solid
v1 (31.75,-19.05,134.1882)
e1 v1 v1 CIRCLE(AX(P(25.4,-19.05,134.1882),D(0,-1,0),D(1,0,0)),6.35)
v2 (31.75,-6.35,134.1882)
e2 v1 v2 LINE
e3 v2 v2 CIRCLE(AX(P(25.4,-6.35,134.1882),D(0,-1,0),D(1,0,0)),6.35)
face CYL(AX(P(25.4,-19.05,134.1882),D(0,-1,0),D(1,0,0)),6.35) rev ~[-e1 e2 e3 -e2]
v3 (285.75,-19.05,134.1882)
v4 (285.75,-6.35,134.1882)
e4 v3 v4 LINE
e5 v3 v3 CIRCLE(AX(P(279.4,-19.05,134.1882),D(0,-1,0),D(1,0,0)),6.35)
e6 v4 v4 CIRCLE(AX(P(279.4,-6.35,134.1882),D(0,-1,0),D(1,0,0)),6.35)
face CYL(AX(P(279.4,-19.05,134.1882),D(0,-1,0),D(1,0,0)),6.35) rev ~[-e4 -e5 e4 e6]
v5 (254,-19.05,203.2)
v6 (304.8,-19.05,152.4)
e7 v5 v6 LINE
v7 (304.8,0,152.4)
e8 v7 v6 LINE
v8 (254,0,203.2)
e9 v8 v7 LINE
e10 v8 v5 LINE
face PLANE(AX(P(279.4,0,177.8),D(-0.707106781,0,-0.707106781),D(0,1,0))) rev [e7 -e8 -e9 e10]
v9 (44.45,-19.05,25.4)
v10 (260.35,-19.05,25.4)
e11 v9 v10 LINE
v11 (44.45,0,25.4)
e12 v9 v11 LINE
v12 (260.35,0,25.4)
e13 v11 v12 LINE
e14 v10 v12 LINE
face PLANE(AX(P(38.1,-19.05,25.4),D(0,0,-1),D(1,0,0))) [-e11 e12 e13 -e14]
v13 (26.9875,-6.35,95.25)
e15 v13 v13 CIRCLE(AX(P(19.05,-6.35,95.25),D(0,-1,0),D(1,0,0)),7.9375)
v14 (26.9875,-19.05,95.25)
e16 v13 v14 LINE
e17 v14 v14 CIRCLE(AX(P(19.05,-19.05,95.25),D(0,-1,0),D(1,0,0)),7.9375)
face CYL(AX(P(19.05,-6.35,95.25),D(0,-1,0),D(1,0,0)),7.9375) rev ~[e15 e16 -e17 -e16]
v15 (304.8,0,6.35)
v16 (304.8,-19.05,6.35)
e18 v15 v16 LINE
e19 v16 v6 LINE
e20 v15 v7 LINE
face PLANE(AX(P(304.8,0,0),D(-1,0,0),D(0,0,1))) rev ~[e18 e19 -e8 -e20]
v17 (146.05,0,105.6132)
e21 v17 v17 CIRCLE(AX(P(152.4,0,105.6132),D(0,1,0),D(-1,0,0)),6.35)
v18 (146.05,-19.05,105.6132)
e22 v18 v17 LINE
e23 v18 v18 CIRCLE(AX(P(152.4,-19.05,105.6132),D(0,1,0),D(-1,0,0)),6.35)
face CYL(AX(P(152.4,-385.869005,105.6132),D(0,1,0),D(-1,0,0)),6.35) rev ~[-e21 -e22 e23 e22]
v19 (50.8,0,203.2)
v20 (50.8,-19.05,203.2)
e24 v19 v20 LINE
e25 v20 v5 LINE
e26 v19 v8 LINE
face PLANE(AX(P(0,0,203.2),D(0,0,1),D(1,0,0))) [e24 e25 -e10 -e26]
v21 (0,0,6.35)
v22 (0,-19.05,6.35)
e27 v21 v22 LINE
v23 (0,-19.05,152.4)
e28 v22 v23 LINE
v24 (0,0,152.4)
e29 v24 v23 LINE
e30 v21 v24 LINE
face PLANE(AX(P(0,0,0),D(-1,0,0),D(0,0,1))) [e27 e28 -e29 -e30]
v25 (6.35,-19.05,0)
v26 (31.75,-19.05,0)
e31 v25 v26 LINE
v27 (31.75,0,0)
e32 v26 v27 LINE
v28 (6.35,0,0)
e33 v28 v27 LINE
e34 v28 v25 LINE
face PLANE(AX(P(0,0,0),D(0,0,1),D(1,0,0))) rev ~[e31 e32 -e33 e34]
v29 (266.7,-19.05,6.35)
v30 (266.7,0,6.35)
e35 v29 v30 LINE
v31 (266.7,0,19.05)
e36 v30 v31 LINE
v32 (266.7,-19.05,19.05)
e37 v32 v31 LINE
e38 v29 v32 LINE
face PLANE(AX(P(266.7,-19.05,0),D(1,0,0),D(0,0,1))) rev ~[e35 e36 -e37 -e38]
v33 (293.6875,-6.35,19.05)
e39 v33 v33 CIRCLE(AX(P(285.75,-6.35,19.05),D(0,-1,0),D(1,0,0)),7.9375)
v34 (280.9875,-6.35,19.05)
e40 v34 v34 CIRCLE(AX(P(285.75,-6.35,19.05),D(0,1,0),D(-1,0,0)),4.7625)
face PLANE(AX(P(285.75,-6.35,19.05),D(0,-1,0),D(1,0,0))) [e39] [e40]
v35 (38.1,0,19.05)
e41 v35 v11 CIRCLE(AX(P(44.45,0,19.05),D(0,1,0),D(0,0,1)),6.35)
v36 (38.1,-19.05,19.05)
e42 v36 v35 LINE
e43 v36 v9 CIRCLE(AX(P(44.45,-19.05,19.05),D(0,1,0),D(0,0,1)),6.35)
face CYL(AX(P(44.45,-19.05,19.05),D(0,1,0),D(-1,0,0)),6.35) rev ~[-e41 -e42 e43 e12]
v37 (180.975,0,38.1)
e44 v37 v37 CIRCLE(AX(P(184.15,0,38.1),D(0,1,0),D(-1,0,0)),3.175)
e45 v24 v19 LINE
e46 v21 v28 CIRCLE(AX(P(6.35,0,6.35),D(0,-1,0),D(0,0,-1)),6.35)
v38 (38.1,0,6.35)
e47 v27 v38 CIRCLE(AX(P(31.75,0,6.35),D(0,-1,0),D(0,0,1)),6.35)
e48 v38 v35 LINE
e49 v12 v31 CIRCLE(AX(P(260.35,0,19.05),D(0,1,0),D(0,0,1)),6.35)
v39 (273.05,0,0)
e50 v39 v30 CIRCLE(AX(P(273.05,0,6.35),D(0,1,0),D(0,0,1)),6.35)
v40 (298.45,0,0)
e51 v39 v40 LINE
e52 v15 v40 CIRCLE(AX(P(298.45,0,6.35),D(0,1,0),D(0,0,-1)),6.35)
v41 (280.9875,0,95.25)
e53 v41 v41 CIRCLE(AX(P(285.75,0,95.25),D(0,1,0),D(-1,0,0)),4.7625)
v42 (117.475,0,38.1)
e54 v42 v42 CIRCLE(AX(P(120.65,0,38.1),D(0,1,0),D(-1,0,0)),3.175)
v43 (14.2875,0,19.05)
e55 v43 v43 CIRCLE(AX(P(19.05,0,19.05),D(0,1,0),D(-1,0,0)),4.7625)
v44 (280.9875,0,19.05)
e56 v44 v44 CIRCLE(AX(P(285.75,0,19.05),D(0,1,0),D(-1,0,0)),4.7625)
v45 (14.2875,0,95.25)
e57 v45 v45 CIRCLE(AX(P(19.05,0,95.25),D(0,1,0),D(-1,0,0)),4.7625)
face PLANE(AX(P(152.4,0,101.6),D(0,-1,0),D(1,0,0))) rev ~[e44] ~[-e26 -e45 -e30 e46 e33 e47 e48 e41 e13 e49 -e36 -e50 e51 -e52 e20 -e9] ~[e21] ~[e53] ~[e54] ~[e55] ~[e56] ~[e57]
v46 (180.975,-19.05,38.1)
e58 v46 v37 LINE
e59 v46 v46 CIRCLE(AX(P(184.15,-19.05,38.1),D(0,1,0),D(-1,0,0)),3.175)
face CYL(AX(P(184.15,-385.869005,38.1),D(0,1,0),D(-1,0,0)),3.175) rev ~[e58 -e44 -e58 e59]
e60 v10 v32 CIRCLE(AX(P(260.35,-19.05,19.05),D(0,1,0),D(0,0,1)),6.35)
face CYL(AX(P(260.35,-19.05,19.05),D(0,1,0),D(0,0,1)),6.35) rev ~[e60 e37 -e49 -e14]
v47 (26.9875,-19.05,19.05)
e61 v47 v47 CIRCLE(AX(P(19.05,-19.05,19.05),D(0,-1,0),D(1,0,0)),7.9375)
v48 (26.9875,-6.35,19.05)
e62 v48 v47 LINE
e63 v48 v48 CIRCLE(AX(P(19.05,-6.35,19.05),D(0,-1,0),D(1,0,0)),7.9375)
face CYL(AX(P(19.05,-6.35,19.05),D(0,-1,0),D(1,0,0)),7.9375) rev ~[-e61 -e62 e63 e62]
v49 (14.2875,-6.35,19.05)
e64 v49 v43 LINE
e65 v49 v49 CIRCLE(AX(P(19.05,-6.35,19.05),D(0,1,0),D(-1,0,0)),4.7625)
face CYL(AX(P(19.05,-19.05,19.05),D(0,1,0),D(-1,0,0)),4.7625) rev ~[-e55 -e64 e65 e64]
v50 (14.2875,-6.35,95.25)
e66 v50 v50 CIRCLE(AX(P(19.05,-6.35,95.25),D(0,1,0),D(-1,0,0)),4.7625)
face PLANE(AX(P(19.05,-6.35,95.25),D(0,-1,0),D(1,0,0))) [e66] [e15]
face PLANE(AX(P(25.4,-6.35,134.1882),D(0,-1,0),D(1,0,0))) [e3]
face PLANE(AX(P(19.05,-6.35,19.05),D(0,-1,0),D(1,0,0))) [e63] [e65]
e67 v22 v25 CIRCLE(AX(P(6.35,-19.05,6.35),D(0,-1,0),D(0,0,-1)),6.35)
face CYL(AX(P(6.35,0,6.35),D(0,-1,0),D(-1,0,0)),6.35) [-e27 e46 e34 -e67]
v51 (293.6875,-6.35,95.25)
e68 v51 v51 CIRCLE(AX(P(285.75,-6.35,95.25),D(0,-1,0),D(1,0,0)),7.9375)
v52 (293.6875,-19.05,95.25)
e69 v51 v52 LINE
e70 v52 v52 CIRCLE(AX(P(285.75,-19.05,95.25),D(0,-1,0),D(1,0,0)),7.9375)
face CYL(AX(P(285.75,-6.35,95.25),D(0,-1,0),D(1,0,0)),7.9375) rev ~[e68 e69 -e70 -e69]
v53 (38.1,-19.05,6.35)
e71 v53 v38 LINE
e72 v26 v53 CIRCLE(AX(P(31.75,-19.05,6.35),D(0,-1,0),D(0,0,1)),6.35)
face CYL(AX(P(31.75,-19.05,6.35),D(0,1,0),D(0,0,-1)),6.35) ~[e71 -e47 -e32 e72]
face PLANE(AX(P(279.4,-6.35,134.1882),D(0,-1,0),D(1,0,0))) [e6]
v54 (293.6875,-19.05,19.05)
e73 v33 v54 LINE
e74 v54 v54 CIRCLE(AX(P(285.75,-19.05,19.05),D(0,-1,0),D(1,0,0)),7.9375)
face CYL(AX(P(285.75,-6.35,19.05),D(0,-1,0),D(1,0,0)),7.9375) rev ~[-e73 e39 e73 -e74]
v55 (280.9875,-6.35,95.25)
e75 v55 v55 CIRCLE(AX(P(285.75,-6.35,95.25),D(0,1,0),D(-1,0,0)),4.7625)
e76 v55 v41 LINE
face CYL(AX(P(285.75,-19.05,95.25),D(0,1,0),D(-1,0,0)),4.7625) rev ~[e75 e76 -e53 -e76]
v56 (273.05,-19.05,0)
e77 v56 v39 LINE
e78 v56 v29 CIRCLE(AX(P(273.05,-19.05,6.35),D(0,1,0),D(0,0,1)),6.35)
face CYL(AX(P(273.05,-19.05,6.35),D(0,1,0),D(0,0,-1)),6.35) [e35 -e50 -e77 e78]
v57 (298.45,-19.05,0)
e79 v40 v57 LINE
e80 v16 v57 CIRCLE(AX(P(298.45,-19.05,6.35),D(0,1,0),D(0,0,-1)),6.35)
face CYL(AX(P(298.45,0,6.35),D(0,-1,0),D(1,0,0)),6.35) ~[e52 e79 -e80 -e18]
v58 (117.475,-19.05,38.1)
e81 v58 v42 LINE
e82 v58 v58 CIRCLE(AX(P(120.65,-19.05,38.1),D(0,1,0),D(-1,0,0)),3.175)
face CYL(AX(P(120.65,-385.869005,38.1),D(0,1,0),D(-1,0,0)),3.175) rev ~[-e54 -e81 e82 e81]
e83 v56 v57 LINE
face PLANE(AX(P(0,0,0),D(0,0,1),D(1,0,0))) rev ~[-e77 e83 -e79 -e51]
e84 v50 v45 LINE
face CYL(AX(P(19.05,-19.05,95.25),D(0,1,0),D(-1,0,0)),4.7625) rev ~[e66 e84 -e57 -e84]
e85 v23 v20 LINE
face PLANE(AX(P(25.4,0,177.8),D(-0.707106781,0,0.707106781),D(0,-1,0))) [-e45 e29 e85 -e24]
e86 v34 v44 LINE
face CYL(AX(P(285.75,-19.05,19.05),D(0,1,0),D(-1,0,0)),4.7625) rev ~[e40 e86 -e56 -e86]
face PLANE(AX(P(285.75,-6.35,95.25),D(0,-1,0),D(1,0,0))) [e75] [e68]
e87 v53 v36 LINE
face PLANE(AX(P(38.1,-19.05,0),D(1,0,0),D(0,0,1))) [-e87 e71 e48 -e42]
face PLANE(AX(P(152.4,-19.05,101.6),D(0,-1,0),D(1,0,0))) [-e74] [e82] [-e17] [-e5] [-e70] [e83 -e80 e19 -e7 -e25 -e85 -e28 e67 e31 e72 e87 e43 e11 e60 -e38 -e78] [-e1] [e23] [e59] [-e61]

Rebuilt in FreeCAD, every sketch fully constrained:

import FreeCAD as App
import Part
import Sketcher

V = App.Vector
Q = App.Units.Quantity


def edges_at(feature, points):
    """Names of the edges that pass closest to the given points."""
    edges = feature.Shape.Edges
    near = lambda p: min(range(len(edges)), key=lambda i: edges[i].distToShape(Part.Vertex(*p))[0])
    return sorted({f"Edge{near(p) + 1}" for p in points})


def add_polygon(sketch, points):
    """Adds a closed chain of lines whose ends are joined by coincident constraints."""
    first, n = sketch.GeometryCount, len(points)
    for a, b in zip(points, points[1:] + points[:1]):
        sketch.addGeometry(Part.LineSegment(App.Vector(*a, 0), App.Vector(*b, 0)), False)
    for i in range(n):
        sketch.addConstraint(Sketcher.Constraint("Coincident", first + i, 2, first + (i + 1) % n, 1))

doc = App.newDocument("Part")
body = doc.addObject("PartDesign::Body", "Body")

# Sketch on XZ plane
sketch1 = doc.addObject("Sketcher::SketchObject", "Sketch")
body.addObject(sketch1)
sketch1.AttachmentSupport = (doc.XZ_Plane, [""])
sketch1.MapMode = "FlatFace"
add_polygon(sketch1, [(0, 203), (0, 0), (305, 0), (305, 203)])  # lines 0-3
sketch1.addConstraint(Sketcher.Constraint("Vertical", 0))
sketch1.addConstraint(Sketcher.Constraint("Horizontal", 1))
sketch1.addConstraint(Sketcher.Constraint("Vertical", 2))
sketch1.addConstraint(Sketcher.Constraint("Horizontal", 3))
sketch1.addConstraint(Sketcher.Constraint("Coincident", 0, 2, -1, 1))
sketch1.addConstraint(Sketcher.Constraint("DistanceX", 1, 1, 1, 2, Q("12 in")))
sketch1.addConstraint(Sketcher.Constraint("DistanceY", 0, 2, 0, 1, Q("8 in")))
pad1 = doc.addObject("PartDesign::Pad", "Pad")
body.addObject(pad1)
pad1.Profile = sketch1
pad1.Length = Q("0.75 in")

# Sketch on XZ plane
sketch2 = doc.addObject("Sketcher::SketchObject", "Sketch001")
body.addObject(sketch2)
sketch2.AttachmentSupport = (doc.XZ_Plane, [""])
sketch2.MapMode = "FlatFace"
sketch2.AttachmentOffset = App.Placement(V(0, 0, 0.75 * 25.4), App.Rotation())
add_polygon(sketch2, [(38, 25), (38, 0), (267, 0), (267, 25)])  # lines 0-3
sketch2.addConstraint(Sketcher.Constraint("Vertical", 0))
sketch2.addConstraint(Sketcher.Constraint("Horizontal", 1))
sketch2.addConstraint(Sketcher.Constraint("Vertical", 2))
sketch2.addConstraint(Sketcher.Constraint("Horizontal", 3))
sketch2.addConstraint(Sketcher.Constraint("PointOnObject", 0, 2, -1))
sketch2.addConstraint(Sketcher.Constraint("DistanceX", 1, 1, 1, 2, Q("9 in")))
sketch2.addConstraint(Sketcher.Constraint("DistanceY", 0, 2, 0, 1, Q("1 in")))
sketch2.addConstraint(Sketcher.Constraint("DistanceX", -1, 1, 0, 2, Q("1.5 in")))
pocket1 = doc.addObject("PartDesign::Pocket", "Pocket")
body.addObject(pocket1)
pocket1.Profile = sketch2
pocket1.Type = "ThroughAll"

# Sketch on XZ plane
sketch3 = doc.addObject("Sketcher::SketchObject", "Sketch002")
body.addObject(sketch3)
sketch3.AttachmentSupport = (doc.XZ_Plane, [""])
sketch3.MapMode = "FlatFace"
sketch3.AttachmentOffset = App.Placement(V(0, 0, 0.75 * 25.4), App.Rotation())
sketch3.addGeometry(Part.Circle(V(120.7, 38.1, 0), V(0, 0, 1), 3.2), False)
sketch3.addGeometry(Part.Circle(V(184.2, 38.1, 0), V(0, 0, 1), 3.2), False)
sketch3.addConstraint(Sketcher.Constraint("Equal", 0, 1))
sketch3.addConstraint(Sketcher.Constraint("Horizontal", 0, 3, 1, 3))
sketch3.addConstraint(Sketcher.Constraint("Diameter", 0, Q("0.25 in")))
sketch3.addConstraint(Sketcher.Constraint("DistanceY", -1, 1, 0, 3, Q("1.5 in")))
sketch3.addConstraint(Sketcher.Constraint("DistanceX", 0, 3, 1, 3, Q("2.5 in")))
sketch3.addConstraint(Sketcher.Constraint("DistanceX", -1, 1, 0, 3, Q("4.75 in")))
doc.recompute()
hole = doc.addObject("PartDesign::Hole", "Hole")
body.addObject(hole)
hole.Profile = sketch3
hole.ThreadType = "None"
hole.Diameter = Q("0.25 in")
hole.DepthType = "ThroughAll"
doc.recompute()

fillet = doc.addObject("PartDesign::Fillet", "Fillet")
body.addObject(fillet)
fillet.Base = (hole, edges_at(hole, [
    (38.1, -9.525, 25.4),
    (266.7, -9.525, 25.4),
    (0, -9.525, 0),
    (38.1, -9.525, 0),
    (266.7, -9.525, 0),
    (304.8, -9.525, 0),
]))
fillet.Radius = Q("0.25 in")

# Sketch on XZ plane
sketch4 = doc.addObject("Sketcher::SketchObject", "Sketch003")
body.addObject(sketch4)
sketch4.AttachmentSupport = (doc.XZ_Plane, [""])
sketch4.MapMode = "FlatFace"
sketch4.AttachmentOffset = App.Placement(V(0, 0, 0.75 * 25.4), App.Rotation())
sketch4.addGeometry(Part.Circle(V(152, 106, 0), V(0, 0, 1), 6), False)
sketch4.addConstraint(Sketcher.Constraint("Diameter", 0, Q("0.5 in")))
sketch4.addConstraint(Sketcher.Constraint("DistanceX", -1, 1, 0, 3, Q("6 in")))
sketch4.addConstraint(Sketcher.Constraint("DistanceY", -1, 1, 0, 3, Q("4.158 in")))
doc.recompute()
hole2 = doc.addObject("PartDesign::Hole", "Hole001")
body.addObject(hole2)
hole2.Profile = sketch4
hole2.ThreadType = "None"
hole2.Diameter = Q("0.5 in")
hole2.DepthType = "ThroughAll"

# Sketch on XZ plane
sketch5 = doc.addObject("Sketcher::SketchObject", "Sketch004")
body.addObject(sketch5)
sketch5.AttachmentSupport = (doc.XZ_Plane, [""])
sketch5.MapMode = "FlatFace"
sketch5.AttachmentOffset = App.Placement(V(0, 0, 0.75 * 25.4), App.Rotation())
sketch5.addGeometry(Part.Circle(V(279, 134, 0), V(0, 0, 1), 6), False)
sketch5.addGeometry(Part.Circle(V(25, 134, 0), V(0, 0, 1), 6), False)
sketch5.addConstraint(Sketcher.Constraint("Equal", 0, 1))
sketch5.addConstraint(Sketcher.Constraint("Horizontal", 0, 3, 1, 3))
sketch5.addConstraint(Sketcher.Constraint("Diameter", 0, Q("0.5 in")))
sketch5.addConstraint(Sketcher.Constraint("DistanceX", -1, 1, 0, 3, Q("11 in")))
sketch5.addConstraint(Sketcher.Constraint("DistanceX", -1, 1, 1, 3, Q("1 in")))
sketch5.addConstraint(Sketcher.Constraint("DistanceY", -1, 1, 0, 3, Q("5.283 in")))
pocket2 = doc.addObject("PartDesign::Pocket", "Pocket001")
body.addObject(pocket2)
pocket2.Profile = sketch5
pocket2.Length = Q("0.5 in")

# Sketch on XZ plane
sketch6 = doc.addObject("Sketcher::SketchObject", "Sketch005")
body.addObject(sketch6)
sketch6.AttachmentSupport = (doc.XZ_Plane, [""])
sketch6.MapMode = "FlatFace"
sketch6.AttachmentOffset = App.Placement(V(0, 0, 0.75 * 25.4), App.Rotation())
sketch6.addGeometry(Part.Circle(V(19.1, 95.2, 0), V(0, 0, 1), 4.8), False)
sketch6.addGeometry(Part.Circle(V(19.1, 19.1, 0), V(0, 0, 1), 4.8), False)
sketch6.addGeometry(Part.Circle(V(285.8, 19.1, 0), V(0, 0, 1), 4.8), False)
sketch6.addGeometry(Part.Circle(V(285.8, 95.2, 0), V(0, 0, 1), 4.8), False)
sketch6.addConstraint(Sketcher.Constraint("Equal", 0, 1))
sketch6.addConstraint(Sketcher.Constraint("Equal", 1, 2))
sketch6.addConstraint(Sketcher.Constraint("Equal", 2, 3))
sketch6.addConstraint(Sketcher.Constraint("Horizontal", 1, 3, 2, 3))
sketch6.addConstraint(Sketcher.Constraint("Horizontal", 0, 3, 3, 3))
sketch6.addConstraint(Sketcher.Constraint("Vertical", 0, 3, 1, 3))
sketch6.addConstraint(Sketcher.Constraint("Vertical", 2, 3, 3, 3))
sketch6.addConstraint(Sketcher.Constraint("Diameter", 0, Q("0.375 in")))
sketch6.addConstraint(Sketcher.Constraint("DistanceY", 1, 3, 0, 3, Q("3 in")))
sketch6.addConstraint(Sketcher.Constraint("DistanceX", 1, 3, 2, 3, Q("10.5 in")))
sketch6.addConstraint(Sketcher.Constraint("DistanceX", -1, 1, 0, 3, Q("0.75 in")))
sketch6.addConstraint(Sketcher.Constraint("DistanceY", -1, 1, 0, 3, Q("3.75 in")))
doc.recompute()
hole3 = doc.addObject("PartDesign::Hole", "Hole002")
body.addObject(hole3)
hole3.Profile = sketch6
hole3.ThreadType = "None"
hole3.Diameter = Q("0.375 in")
hole3.DepthType = "ThroughAll"
hole3.HoleCutType = "Counterbore"
hole3.HoleCutDiameter = Q("0.625 in")
hole3.HoleCutDepth = Q("0.5 in")
doc.recompute()

chamfer = doc.addObject("PartDesign::Chamfer", "Chamfer")
body.addObject(chamfer)
chamfer.Base = (hole3, edges_at(hole3, [(0, -9.525, 203.2), (304.8, -9.525, 203.2)]))
chamfer.Size = Q("2 in")

doc.recompute()
